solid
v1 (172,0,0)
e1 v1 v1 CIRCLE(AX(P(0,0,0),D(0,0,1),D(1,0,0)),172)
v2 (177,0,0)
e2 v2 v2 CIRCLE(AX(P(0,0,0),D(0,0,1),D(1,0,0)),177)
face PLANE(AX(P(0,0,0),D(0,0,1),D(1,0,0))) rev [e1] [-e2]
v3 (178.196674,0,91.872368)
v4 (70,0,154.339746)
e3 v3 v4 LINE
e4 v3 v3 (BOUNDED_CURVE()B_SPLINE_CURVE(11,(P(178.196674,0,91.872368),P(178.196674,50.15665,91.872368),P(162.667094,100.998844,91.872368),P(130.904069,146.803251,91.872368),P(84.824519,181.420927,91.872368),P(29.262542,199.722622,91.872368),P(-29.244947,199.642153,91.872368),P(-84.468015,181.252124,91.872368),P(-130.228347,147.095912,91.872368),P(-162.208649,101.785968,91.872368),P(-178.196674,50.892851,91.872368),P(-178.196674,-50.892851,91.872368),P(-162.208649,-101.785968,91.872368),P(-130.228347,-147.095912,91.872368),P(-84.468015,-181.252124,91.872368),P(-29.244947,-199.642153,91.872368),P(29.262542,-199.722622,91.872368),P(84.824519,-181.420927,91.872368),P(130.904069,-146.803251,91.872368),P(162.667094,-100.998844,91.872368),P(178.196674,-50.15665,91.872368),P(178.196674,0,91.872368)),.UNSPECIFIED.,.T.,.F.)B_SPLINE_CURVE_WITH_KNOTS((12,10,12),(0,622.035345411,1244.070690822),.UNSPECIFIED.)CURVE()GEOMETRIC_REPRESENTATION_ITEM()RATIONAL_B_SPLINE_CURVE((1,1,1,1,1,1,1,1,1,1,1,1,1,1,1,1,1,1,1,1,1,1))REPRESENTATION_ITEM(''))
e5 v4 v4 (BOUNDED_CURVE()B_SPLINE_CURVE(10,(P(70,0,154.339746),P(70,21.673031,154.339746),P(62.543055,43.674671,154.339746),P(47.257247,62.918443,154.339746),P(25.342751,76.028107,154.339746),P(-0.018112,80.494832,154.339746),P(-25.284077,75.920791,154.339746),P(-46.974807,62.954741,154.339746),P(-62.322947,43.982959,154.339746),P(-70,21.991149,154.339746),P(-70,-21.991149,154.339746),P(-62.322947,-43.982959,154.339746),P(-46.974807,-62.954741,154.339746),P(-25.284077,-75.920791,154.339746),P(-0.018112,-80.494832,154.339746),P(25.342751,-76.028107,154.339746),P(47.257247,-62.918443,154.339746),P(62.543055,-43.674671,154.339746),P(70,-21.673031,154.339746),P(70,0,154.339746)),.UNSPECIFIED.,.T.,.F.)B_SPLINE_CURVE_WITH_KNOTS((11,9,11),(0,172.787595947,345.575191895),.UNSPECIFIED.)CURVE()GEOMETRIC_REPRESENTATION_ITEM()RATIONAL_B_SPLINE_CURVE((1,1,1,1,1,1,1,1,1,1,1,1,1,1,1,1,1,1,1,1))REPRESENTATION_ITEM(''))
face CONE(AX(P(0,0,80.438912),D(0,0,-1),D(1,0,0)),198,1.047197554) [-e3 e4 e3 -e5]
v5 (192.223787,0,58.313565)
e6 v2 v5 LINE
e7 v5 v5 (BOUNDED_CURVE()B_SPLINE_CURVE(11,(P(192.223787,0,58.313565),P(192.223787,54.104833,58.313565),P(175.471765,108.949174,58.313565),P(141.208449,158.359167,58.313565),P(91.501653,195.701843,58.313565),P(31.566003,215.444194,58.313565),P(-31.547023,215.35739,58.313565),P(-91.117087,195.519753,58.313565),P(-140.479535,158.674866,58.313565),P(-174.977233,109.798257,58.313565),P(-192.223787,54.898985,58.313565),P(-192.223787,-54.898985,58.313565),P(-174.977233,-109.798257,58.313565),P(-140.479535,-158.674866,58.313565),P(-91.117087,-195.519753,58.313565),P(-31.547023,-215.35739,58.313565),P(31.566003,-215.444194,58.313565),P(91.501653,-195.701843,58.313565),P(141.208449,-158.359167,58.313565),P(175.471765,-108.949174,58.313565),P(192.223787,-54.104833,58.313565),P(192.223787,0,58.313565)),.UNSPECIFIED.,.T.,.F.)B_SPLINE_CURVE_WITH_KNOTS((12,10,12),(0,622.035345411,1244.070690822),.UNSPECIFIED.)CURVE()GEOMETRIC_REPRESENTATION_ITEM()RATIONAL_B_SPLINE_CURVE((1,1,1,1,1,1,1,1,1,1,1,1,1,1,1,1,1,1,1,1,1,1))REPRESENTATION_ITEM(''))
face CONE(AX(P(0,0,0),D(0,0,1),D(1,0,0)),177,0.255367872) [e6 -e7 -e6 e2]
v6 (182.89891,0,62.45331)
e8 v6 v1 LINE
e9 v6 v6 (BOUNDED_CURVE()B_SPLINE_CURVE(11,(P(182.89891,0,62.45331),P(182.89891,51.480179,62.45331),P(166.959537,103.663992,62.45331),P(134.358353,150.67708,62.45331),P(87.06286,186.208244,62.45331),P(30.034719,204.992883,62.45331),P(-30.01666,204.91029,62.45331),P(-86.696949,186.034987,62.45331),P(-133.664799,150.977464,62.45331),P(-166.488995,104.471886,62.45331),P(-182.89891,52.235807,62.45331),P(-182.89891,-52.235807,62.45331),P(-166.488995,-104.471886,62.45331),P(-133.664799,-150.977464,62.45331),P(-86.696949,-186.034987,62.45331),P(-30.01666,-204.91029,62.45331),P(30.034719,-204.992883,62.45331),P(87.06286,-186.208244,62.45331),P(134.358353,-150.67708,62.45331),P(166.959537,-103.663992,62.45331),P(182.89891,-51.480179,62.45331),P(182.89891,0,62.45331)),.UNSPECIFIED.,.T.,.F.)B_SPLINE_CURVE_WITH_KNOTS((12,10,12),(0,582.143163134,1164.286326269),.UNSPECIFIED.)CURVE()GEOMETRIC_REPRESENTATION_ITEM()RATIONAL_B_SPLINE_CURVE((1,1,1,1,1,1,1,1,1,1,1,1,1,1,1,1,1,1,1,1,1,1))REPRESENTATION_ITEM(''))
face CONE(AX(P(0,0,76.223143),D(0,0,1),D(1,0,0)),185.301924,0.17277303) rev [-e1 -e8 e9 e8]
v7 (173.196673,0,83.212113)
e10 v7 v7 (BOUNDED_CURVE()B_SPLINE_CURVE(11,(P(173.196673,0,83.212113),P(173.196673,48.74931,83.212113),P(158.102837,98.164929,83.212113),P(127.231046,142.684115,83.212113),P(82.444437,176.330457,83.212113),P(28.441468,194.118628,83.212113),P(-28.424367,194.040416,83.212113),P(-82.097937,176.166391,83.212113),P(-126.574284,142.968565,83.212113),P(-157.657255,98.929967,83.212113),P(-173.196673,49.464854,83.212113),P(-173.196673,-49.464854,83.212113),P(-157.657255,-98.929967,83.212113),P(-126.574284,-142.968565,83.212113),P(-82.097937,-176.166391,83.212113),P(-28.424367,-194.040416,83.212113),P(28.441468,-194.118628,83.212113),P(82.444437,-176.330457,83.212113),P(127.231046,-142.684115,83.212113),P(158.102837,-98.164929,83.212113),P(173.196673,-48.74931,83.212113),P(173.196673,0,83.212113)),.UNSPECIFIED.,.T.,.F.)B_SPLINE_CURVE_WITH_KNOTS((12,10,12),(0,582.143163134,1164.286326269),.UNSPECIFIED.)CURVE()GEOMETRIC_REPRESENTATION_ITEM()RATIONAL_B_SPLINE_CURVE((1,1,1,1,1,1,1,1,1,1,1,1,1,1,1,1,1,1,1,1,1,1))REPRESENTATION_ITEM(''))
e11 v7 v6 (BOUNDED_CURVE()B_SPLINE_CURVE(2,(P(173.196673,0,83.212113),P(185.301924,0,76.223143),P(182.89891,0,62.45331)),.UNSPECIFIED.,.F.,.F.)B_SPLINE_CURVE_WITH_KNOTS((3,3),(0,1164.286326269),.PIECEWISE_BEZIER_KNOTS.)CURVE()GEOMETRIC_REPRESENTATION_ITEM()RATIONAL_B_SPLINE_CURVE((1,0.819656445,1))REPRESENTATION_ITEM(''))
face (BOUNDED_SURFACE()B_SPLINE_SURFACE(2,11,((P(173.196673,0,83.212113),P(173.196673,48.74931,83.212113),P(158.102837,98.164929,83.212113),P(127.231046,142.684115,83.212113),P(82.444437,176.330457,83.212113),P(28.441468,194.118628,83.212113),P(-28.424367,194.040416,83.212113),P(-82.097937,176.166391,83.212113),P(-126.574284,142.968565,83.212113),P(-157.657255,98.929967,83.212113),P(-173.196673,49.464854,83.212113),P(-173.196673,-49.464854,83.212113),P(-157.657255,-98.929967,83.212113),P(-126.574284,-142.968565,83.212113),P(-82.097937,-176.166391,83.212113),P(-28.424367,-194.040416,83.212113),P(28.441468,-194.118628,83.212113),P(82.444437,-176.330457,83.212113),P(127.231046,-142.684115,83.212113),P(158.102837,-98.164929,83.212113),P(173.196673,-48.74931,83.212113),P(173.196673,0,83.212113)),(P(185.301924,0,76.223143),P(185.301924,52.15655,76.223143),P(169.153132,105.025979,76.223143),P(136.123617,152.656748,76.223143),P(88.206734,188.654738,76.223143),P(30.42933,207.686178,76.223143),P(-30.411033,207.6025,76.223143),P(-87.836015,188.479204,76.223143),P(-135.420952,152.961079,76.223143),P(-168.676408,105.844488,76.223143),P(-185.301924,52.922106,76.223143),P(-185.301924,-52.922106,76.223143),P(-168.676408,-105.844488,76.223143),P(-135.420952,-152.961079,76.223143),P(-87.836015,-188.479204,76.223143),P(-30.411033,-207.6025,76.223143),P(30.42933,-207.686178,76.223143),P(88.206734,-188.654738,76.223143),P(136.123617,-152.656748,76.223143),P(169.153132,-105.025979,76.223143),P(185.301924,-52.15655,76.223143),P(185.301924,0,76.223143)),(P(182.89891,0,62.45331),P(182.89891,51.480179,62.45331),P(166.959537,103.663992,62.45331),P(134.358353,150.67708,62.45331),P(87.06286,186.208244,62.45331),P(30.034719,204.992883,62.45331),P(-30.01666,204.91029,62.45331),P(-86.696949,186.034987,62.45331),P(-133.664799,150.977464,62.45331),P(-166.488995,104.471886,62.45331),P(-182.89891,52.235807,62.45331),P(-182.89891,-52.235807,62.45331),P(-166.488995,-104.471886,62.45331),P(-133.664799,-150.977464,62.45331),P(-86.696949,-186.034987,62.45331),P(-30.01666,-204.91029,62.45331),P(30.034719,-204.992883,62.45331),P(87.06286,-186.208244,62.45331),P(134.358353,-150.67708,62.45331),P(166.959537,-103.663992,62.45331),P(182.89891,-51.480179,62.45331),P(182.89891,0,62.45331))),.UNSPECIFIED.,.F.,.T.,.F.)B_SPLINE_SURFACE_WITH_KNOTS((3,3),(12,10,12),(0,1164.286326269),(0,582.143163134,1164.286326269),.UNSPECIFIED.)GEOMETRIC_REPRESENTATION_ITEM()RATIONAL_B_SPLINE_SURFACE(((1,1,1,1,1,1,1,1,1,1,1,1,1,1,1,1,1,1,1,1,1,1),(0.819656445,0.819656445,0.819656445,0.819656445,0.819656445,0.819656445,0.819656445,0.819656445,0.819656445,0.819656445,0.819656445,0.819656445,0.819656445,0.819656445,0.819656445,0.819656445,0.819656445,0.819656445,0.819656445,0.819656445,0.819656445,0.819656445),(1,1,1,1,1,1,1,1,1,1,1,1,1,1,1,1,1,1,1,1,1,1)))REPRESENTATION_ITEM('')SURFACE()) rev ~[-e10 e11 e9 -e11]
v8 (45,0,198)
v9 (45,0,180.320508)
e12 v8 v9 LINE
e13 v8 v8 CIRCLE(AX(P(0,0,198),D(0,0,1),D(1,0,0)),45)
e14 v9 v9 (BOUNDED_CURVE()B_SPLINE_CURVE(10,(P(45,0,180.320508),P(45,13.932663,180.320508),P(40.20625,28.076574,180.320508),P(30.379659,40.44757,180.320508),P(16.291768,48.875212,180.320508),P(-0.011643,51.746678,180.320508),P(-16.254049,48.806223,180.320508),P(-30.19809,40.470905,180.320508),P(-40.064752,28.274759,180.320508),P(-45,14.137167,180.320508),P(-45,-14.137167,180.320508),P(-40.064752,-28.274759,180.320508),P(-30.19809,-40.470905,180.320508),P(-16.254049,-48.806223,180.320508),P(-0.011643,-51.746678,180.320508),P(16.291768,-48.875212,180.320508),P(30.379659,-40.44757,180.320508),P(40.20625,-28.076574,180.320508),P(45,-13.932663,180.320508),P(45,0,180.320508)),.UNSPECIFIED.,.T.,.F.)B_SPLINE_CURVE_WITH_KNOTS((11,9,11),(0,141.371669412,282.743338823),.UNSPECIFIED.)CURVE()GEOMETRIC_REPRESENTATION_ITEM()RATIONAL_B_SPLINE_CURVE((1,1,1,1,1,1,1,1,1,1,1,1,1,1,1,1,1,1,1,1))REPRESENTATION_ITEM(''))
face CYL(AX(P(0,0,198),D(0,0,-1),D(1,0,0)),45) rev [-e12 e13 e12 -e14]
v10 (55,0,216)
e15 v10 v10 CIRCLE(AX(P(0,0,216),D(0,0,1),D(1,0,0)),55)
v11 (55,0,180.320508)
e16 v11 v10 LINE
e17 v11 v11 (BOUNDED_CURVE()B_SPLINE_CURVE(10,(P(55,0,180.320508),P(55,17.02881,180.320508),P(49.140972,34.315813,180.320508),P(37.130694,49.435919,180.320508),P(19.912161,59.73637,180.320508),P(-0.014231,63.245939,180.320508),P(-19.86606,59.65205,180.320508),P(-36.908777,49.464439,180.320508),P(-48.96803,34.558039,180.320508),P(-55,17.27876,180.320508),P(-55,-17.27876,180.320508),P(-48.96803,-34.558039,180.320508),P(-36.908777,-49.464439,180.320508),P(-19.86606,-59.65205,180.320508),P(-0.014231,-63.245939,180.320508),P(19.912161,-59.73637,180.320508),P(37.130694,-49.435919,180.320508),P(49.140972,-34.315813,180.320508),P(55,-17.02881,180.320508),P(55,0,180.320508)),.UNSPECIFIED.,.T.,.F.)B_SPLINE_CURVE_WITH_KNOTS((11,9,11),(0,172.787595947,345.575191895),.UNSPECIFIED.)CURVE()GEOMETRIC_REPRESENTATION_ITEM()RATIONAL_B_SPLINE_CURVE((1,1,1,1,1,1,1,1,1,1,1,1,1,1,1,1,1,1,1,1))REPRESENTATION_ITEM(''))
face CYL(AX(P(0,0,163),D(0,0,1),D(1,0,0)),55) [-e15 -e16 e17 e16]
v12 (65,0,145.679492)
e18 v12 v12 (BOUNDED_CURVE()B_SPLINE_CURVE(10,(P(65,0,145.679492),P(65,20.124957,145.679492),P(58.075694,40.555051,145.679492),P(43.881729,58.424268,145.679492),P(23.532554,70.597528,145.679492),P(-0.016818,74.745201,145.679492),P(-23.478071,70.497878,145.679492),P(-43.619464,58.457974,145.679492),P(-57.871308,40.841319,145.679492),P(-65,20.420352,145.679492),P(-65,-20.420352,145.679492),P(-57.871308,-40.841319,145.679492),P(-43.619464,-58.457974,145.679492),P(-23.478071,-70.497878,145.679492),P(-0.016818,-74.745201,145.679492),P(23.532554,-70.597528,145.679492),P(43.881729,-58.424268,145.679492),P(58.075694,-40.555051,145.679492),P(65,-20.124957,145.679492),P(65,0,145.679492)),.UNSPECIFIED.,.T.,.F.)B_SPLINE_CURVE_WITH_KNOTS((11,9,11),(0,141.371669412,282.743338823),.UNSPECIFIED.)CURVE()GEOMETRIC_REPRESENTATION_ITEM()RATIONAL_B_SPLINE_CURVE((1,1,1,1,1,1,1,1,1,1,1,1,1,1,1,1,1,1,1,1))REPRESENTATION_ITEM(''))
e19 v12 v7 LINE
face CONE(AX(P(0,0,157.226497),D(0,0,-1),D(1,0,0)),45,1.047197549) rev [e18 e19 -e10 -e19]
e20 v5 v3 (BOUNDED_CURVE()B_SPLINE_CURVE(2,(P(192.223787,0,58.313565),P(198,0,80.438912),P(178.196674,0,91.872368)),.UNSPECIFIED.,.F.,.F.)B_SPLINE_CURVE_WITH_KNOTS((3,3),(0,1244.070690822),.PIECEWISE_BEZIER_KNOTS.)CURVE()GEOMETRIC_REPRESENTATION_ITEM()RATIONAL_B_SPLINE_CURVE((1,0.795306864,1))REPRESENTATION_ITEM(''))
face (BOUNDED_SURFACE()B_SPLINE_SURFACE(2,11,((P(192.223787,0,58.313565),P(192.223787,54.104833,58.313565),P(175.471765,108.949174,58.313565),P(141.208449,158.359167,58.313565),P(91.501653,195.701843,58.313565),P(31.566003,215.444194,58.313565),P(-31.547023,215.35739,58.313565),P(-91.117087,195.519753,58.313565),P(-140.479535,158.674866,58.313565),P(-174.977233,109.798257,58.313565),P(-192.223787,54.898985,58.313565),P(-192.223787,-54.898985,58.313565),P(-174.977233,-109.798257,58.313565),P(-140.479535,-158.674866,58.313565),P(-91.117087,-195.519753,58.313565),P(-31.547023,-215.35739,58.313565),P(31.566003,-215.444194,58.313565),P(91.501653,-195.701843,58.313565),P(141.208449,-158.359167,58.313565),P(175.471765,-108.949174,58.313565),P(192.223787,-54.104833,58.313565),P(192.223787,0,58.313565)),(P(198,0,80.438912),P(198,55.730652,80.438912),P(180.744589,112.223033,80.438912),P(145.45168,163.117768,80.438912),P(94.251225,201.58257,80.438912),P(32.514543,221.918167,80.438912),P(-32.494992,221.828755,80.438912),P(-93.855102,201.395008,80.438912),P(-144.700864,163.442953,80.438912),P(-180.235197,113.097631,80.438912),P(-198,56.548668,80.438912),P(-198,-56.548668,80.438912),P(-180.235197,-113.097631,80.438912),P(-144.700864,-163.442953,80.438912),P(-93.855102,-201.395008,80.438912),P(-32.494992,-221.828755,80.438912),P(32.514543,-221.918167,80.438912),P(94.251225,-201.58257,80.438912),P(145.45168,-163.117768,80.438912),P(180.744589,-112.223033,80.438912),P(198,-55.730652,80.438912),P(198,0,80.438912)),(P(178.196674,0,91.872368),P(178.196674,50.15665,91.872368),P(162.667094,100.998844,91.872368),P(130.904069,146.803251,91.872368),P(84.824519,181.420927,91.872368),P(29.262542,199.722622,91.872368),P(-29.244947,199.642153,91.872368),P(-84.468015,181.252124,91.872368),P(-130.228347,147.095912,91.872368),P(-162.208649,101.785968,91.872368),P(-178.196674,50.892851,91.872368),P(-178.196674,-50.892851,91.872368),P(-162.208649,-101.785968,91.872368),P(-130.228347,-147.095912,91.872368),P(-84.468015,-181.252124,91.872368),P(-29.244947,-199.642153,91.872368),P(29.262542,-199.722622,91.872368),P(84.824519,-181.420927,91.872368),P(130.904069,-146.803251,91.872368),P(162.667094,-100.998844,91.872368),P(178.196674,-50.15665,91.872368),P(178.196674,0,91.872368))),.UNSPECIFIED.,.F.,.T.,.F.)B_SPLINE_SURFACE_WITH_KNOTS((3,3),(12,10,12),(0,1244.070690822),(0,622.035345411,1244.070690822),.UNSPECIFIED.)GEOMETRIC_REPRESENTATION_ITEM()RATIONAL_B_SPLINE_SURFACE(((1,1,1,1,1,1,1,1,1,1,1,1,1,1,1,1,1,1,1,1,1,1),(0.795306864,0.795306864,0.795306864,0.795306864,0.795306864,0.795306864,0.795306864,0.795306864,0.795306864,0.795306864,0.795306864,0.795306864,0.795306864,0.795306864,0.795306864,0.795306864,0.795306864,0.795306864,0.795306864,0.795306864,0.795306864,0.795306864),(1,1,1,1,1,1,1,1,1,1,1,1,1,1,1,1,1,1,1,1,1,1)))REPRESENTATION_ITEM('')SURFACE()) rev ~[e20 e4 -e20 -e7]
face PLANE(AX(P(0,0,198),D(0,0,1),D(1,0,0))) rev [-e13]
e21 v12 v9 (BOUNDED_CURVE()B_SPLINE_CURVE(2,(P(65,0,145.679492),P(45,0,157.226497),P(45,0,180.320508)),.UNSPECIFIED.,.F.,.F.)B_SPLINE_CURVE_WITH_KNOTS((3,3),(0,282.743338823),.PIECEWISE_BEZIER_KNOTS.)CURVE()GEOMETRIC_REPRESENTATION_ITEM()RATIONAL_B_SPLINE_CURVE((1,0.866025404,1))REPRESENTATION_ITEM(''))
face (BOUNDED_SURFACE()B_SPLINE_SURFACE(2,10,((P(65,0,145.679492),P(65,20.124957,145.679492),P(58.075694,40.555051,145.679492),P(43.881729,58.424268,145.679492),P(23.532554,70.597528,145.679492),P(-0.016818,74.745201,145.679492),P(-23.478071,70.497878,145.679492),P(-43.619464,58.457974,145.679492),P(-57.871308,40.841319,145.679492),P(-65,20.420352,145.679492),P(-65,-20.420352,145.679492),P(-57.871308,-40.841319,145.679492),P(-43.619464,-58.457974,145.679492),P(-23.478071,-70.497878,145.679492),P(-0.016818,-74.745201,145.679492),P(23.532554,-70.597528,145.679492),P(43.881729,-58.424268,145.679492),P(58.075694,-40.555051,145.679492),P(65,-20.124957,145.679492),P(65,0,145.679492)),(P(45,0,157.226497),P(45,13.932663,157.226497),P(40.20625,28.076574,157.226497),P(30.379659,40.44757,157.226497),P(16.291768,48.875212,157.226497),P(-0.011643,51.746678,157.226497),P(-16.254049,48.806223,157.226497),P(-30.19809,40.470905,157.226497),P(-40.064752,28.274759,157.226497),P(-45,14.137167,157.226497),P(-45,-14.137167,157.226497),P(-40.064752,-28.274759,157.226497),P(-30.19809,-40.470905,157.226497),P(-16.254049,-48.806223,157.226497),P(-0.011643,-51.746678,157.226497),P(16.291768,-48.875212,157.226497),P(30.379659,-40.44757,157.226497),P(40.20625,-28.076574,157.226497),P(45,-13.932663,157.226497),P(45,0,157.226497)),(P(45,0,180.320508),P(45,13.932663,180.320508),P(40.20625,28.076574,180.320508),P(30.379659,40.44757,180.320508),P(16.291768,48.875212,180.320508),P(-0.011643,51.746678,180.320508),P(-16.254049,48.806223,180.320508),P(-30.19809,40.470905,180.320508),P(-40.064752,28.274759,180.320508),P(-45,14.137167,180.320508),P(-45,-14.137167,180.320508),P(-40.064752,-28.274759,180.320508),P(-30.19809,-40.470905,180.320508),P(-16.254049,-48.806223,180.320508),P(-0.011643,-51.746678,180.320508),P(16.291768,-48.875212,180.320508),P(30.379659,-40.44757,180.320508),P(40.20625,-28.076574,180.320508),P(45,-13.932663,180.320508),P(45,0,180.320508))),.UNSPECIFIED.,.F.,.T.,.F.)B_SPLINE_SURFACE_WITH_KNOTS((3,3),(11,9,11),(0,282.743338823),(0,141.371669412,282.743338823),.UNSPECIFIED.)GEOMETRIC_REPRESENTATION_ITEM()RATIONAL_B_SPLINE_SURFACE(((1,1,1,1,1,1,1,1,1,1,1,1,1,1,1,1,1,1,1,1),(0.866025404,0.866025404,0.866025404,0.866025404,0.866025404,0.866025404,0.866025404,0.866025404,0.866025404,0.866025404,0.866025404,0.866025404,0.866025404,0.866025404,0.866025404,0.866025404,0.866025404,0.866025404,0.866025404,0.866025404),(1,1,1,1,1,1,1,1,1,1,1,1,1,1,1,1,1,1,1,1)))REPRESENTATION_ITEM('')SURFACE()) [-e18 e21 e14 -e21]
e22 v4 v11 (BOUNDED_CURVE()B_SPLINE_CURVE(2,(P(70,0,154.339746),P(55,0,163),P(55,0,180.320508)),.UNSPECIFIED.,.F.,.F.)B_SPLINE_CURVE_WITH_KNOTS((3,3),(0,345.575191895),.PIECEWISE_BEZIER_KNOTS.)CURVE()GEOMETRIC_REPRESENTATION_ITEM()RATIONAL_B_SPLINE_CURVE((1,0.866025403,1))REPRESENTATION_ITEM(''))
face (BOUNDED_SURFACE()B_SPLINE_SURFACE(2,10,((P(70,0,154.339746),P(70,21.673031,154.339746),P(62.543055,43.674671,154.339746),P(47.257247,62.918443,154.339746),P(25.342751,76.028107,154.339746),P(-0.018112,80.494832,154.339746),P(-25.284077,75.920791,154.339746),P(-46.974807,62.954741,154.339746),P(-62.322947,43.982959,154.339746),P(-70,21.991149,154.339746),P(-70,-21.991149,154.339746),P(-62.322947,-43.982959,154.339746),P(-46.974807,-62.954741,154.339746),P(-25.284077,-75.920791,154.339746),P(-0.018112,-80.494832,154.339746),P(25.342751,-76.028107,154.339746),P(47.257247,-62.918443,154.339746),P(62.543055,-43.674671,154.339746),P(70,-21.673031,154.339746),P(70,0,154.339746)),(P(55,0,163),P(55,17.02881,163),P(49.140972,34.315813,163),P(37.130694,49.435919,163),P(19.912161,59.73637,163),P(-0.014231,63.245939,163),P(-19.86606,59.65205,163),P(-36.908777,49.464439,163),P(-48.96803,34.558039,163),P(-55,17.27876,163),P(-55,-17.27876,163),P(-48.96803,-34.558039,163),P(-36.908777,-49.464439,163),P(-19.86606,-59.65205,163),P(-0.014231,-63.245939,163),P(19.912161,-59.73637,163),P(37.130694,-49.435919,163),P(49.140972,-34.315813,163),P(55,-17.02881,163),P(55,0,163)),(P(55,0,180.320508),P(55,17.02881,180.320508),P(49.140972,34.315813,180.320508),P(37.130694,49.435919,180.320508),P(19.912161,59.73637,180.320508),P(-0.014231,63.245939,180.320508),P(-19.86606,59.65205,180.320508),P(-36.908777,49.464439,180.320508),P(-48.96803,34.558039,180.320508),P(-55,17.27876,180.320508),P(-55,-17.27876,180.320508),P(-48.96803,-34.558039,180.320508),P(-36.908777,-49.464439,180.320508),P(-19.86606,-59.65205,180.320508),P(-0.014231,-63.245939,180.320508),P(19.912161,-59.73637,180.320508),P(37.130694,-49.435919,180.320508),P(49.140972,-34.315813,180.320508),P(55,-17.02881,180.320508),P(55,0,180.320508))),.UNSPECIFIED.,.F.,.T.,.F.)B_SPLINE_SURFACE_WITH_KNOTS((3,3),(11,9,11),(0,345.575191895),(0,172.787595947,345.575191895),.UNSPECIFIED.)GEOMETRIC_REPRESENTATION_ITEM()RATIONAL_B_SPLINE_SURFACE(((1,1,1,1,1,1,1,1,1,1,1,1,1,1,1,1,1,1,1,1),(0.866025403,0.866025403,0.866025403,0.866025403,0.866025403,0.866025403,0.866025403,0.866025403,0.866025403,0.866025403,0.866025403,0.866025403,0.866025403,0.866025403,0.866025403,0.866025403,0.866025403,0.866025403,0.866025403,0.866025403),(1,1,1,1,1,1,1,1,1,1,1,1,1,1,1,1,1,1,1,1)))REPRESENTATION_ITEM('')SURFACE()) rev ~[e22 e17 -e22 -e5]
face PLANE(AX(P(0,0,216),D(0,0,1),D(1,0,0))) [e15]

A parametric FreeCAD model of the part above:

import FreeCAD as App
import Part
import Sketcher

V = App.Vector
Q = App.Units.Quantity


def edges_at(feature, points):
    """Names of the edges that pass closest to the given points."""
    edges = feature.Shape.Edges
    near = lambda p: min(range(len(edges)), key=lambda i: edges[i].distToShape(Part.Vertex(*p))[0])
    return sorted({f"Edge{near(p) + 1}" for p in points})

doc = App.newDocument("Part")
params = doc.addObject("Spreadsheet::Sheet", "Params")
for row, (alias, value) in enumerate([
    ("sketch1_width", "45 mm"),
    ("sketch1_width2", "5 mm"),
    ("sketch1_width3", "55 mm"),
    ("sketch1_height", "18 mm"),
    ("sketch1_height2", "53 mm"),
    ("revolution_angle", "360 deg"),
    ("fillet_radius", "20 mm"),
    ("fillet2_radius", "30 mm"),
    ("fillet3_radius", "40 mm"),
], start=1):
    params.set(f"A{row}", alias)
    params.set(f"B{row}", "=" + value)
    params.setAlias(f"B{row}", alias)

body = doc.addObject("PartDesign::Body", "Body")

# Sketch on XZ plane
sketch1 = doc.addObject("Sketcher::SketchObject", "Sketch")
body.addObject(sketch1)
sketch1.AttachmentSupport = (doc.XZ_Plane, [""])
sketch1.MapMode = "FlatFace"
sketch1.addGeometry([
    Part.LineSegment(V(0, 216, 0), V(0, 198, 0)),  # 0
    Part.LineSegment(V(0, 198, 0), V(45, 198, 0)),  # 1
    Part.LineSegment(V(45, 198, 0), V(45, 157.226497, 0)),  # 2
    Part.LineSegment(V(45, 157.226497, 0), V(185.301924, 76.223143, 0)),  # 3
    Part.LineSegment(V(185.301924, 76.223143, 0), V(172, 0, 0)),  # 4
    Part.LineSegment(V(172, 0, 0), V(177, 0, 0)),  # 5
    Part.LineSegment(V(177, 0, 0), V(198, 80.438912, 0)),  # 6
    Part.LineSegment(V(198, 80.438912, 0), V(55, 163, 0)),  # 7
    Part.LineSegment(V(55, 163, 0), V(55, 216, 0)),  # 8
    Part.LineSegment(V(55, 216, 0), V(0, 216, 0)),  # 9
], False)
sketch1.addConstraint([
    Sketcher.Constraint("Coincident", 0, 2, 1, 1),
    Sketcher.Constraint("Coincident", 1, 2, 2, 1),
    Sketcher.Constraint("Coincident", 2, 2, 3, 1),
    Sketcher.Constraint("Coincident", 3, 2, 4, 1),
    Sketcher.Constraint("Coincident", 4, 2, 5, 1),
    Sketcher.Constraint("Coincident", 5, 2, 6, 1),
    Sketcher.Constraint("Coincident", 6, 2, 7, 1),
    Sketcher.Constraint("Coincident", 7, 2, 8, 1),
    Sketcher.Constraint("Coincident", 8, 2, 9, 1),
    Sketcher.Constraint("Coincident", 9, 2, 0, 1),
    Sketcher.Constraint("Vertical", 0),
    Sketcher.Constraint("Horizontal", 1),
    Sketcher.Constraint("Vertical", 2),
    Sketcher.Constraint("Horizontal", 5),
    Sketcher.Constraint("Vertical", 8),
    Sketcher.Constraint("Horizontal", 9),
    Sketcher.Constraint("PointOnObject", 0, 2, -2),
    Sketcher.Constraint("PointOnObject", 4, 2, -1),
    Sketcher.Constraint("Parallel", 3, 7),
    Sketcher.Constraint("DistanceX", 1, 1, 1, 2, Q("45 mm")),
    Sketcher.Constraint("DistanceX", 5, 1, 5, 2, Q("5 mm")),
    Sketcher.Constraint("DistanceX", 9, 2, 9, 1, Q("55 mm")),
    Sketcher.Constraint("DistanceY", 0, 2, 0, 1, Q("18 mm")),
    Sketcher.Constraint("DistanceY", 8, 1, 8, 2, Q("53 mm")),
    Sketcher.Constraint("Angle", 3, Q("-30 deg")),
    Sketcher.Constraint("DistanceY", -1, 1, 0, 2, Q("198 mm")),
    Sketcher.Constraint("DistanceX", -1, 1, 4, 2, Q("172 mm")),
    Sketcher.Constraint("DistanceX", -1, 1, 6, 2, Q("198 mm")),
    Sketcher.Constraint("DistanceY", 2, 2, 2, 1, Q("40.773503 mm")),
    Sketcher.Constraint("DistanceY", 3, 2, 6, 2, Q("4.215769 mm")),
])
sketch1.setExpression("Constraints[19]", "Params.sketch1_width")
sketch1.setExpression("Constraints[20]", "Params.sketch1_width2")
sketch1.setExpression("Constraints[21]", "Params.sketch1_width3")
sketch1.setExpression("Constraints[22]", "Params.sketch1_height")
sketch1.setExpression("Constraints[23]", "Params.sketch1_height2")
revolution = doc.addObject("PartDesign::Revolution", "Revolution")
body.addObject(revolution)
revolution.Profile = sketch1
revolution.ReferenceAxis = (sketch1, ["V_Axis"])
revolution.setExpression("Angle", "Params.revolution_angle")
doc.recompute()

fillet = doc.addObject("PartDesign::Fillet", "Fillet")
body.addObject(fillet)
fillet.Base = (revolution, edges_at(revolution, [(-185.302, 0, 76.223)]))
fillet.setExpression("Radius", "Params.fillet_radius")
doc.recompute()

fillet2 = doc.addObject("PartDesign::Fillet", "Fillet001")
body.addObject(fillet2)
fillet2.Base = (fillet, edges_at(fillet, [(-198, 0, 80.439), (-55, 0, 163)]))
fillet2.setExpression("Radius", "Params.fillet2_radius")
doc.recompute()

fillet3 = doc.addObject("PartDesign::Fillet", "Fillet002")
body.addObject(fillet3)
fillet3.Base = (fillet2, edges_at(fillet2, [(-45, 0, 157.226)]))
fillet3.setExpression("Radius", "Params.fillet3_radius")

doc.recompute()
